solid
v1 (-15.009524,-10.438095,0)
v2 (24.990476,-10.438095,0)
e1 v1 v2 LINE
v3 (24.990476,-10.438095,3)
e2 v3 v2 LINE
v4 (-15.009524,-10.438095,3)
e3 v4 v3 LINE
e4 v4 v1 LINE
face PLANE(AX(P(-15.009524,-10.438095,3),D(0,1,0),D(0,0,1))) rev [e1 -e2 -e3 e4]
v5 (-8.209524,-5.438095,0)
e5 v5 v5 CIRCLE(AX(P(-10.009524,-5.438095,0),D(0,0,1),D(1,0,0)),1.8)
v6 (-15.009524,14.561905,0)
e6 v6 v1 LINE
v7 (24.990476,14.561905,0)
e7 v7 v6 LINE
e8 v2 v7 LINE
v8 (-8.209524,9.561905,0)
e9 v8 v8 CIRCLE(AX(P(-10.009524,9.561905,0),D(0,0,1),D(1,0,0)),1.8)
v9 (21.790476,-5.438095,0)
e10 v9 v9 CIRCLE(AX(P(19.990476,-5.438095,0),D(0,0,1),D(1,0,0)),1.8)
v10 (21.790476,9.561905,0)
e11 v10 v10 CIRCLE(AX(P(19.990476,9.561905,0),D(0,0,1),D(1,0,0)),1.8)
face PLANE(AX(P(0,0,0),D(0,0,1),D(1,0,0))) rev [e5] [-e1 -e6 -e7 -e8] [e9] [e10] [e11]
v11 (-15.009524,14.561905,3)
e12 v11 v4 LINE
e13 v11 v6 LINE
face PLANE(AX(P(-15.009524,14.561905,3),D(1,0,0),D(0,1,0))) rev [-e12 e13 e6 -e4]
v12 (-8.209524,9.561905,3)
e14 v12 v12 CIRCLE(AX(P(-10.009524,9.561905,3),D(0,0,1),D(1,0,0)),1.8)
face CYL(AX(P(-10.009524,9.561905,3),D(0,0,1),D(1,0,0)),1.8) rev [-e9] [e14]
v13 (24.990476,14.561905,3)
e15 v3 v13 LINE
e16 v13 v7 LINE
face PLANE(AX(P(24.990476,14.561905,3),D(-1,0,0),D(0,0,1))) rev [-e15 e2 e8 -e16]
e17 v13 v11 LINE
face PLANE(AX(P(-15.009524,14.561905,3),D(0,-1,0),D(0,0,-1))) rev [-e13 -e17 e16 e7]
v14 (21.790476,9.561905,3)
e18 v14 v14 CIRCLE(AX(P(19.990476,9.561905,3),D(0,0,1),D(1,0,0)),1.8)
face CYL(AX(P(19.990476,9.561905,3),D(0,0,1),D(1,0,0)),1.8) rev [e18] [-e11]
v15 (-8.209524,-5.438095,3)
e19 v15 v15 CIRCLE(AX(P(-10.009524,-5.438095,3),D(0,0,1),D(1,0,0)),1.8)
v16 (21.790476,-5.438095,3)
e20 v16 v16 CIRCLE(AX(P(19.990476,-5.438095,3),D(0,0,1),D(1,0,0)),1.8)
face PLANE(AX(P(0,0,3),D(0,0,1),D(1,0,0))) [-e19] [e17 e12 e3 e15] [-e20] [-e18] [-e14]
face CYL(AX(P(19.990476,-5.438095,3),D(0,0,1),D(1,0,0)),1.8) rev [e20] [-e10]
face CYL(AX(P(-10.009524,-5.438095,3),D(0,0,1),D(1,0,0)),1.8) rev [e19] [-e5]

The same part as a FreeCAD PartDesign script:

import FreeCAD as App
import Part
import Sketcher

V = App.Vector
Q = App.Units.Quantity


def add_polygon(sketch, points):
    """Adds a closed chain of lines whose ends are joined by coincident constraints."""
    first, n = sketch.GeometryCount, len(points)
    for a, b in zip(points, points[1:] + points[:1]):
        sketch.addGeometry(Part.LineSegment(App.Vector(*a, 0), App.Vector(*b, 0)), False)
    for i in range(n):
        sketch.addConstraint(Sketcher.Constraint("Coincident", first + i, 2, first + (i + 1) % n, 1))

doc = App.newDocument("Part")
body = doc.addObject("PartDesign::Body", "Body")

# Sketch on XY plane
sketch1 = doc.addObject("Sketcher::SketchObject", "Sketch")
body.addObject(sketch1)
sketch1.AttachmentSupport = (doc.XY_Plane, [""])
sketch1.MapMode = "FlatFace"
add_polygon(sketch1, [(-15, 15), (-15, -10), (25, -10), (25, 15)])  # lines 0-3
sketch1.addConstraint([
    Sketcher.Constraint("Vertical", 0),
    Sketcher.Constraint("Horizontal", 1),
    Sketcher.Constraint("Vertical", 2),
    Sketcher.Constraint("Horizontal", 3),
    Sketcher.Constraint("DistanceX", 1, 1, 1, 2, Q("40 mm")),
    Sketcher.Constraint("DistanceY", 0, 2, 0, 1, Q("25 mm")),
    Sketcher.Constraint("DistanceX", 0, 2, -1, 1, Q("15.009524 mm")),
    Sketcher.Constraint("DistanceY", 0, 2, -1, 1, Q("10.438095 mm")),
])
pad1 = doc.addObject("PartDesign::Pad", "Pad")
body.addObject(pad1)
pad1.Profile = sketch1
pad1.Length = 3

# Sketch on XY plane
sketch2 = doc.addObject("Sketcher::SketchObject", "Sketch001")
body.addObject(sketch2)
sketch2.AttachmentSupport = (doc.XY_Plane, [""])
sketch2.MapMode = "FlatFace"
sketch2.AttachmentOffset = App.Placement(V(0, 0, 3), App.Rotation())
sketch2.addGeometry([
    Part.Circle(V(20, 9.6, 0), V(0, 0, 1), 1.8),
    Part.Circle(V(-10, 9.6, 0), V(0, 0, 1), 1.8),
    Part.Circle(V(-10, -5.4, 0), V(0, 0, 1), 1.8),
    Part.Circle(V(20, -5.4, 0), V(0, 0, 1), 1.8),
], False)
sketch2.addConstraint([
    Sketcher.Constraint("Equal", 0, 1),
    Sketcher.Constraint("Equal", 1, 2),
    Sketcher.Constraint("Equal", 2, 3),
    Sketcher.Constraint("Horizontal", 0, 3, 1, 3),
    Sketcher.Constraint("Horizontal", 2, 3, 3, 3),
    Sketcher.Constraint("Vertical", 1, 3, 2, 3),
    Sketcher.Constraint("Vertical", 0, 3, 3, 3),
    Sketcher.Constraint("Diameter", 0, Q("3.6 mm")),
    Sketcher.Constraint("DistanceX", 1, 3, 0, 3, Q("30 mm")),
    Sketcher.Constraint("DistanceY", 2, 3, 1, 3, Q("15 mm")),
    Sketcher.Constraint("DistanceX", -1, 1, 0, 3, Q("19.990476 mm")),
    Sketcher.Constraint("DistanceY", -1, 1, 0, 3, Q("9.561905 mm")),
])
doc.recompute()
hole = doc.addObject("PartDesign::Hole", "Hole")
body.addObject(hole)
hole.Profile = sketch2
hole.ThreadType = "None"
hole.Diameter = 3.6
hole.DepthType = "ThroughAll"

doc.recompute()
